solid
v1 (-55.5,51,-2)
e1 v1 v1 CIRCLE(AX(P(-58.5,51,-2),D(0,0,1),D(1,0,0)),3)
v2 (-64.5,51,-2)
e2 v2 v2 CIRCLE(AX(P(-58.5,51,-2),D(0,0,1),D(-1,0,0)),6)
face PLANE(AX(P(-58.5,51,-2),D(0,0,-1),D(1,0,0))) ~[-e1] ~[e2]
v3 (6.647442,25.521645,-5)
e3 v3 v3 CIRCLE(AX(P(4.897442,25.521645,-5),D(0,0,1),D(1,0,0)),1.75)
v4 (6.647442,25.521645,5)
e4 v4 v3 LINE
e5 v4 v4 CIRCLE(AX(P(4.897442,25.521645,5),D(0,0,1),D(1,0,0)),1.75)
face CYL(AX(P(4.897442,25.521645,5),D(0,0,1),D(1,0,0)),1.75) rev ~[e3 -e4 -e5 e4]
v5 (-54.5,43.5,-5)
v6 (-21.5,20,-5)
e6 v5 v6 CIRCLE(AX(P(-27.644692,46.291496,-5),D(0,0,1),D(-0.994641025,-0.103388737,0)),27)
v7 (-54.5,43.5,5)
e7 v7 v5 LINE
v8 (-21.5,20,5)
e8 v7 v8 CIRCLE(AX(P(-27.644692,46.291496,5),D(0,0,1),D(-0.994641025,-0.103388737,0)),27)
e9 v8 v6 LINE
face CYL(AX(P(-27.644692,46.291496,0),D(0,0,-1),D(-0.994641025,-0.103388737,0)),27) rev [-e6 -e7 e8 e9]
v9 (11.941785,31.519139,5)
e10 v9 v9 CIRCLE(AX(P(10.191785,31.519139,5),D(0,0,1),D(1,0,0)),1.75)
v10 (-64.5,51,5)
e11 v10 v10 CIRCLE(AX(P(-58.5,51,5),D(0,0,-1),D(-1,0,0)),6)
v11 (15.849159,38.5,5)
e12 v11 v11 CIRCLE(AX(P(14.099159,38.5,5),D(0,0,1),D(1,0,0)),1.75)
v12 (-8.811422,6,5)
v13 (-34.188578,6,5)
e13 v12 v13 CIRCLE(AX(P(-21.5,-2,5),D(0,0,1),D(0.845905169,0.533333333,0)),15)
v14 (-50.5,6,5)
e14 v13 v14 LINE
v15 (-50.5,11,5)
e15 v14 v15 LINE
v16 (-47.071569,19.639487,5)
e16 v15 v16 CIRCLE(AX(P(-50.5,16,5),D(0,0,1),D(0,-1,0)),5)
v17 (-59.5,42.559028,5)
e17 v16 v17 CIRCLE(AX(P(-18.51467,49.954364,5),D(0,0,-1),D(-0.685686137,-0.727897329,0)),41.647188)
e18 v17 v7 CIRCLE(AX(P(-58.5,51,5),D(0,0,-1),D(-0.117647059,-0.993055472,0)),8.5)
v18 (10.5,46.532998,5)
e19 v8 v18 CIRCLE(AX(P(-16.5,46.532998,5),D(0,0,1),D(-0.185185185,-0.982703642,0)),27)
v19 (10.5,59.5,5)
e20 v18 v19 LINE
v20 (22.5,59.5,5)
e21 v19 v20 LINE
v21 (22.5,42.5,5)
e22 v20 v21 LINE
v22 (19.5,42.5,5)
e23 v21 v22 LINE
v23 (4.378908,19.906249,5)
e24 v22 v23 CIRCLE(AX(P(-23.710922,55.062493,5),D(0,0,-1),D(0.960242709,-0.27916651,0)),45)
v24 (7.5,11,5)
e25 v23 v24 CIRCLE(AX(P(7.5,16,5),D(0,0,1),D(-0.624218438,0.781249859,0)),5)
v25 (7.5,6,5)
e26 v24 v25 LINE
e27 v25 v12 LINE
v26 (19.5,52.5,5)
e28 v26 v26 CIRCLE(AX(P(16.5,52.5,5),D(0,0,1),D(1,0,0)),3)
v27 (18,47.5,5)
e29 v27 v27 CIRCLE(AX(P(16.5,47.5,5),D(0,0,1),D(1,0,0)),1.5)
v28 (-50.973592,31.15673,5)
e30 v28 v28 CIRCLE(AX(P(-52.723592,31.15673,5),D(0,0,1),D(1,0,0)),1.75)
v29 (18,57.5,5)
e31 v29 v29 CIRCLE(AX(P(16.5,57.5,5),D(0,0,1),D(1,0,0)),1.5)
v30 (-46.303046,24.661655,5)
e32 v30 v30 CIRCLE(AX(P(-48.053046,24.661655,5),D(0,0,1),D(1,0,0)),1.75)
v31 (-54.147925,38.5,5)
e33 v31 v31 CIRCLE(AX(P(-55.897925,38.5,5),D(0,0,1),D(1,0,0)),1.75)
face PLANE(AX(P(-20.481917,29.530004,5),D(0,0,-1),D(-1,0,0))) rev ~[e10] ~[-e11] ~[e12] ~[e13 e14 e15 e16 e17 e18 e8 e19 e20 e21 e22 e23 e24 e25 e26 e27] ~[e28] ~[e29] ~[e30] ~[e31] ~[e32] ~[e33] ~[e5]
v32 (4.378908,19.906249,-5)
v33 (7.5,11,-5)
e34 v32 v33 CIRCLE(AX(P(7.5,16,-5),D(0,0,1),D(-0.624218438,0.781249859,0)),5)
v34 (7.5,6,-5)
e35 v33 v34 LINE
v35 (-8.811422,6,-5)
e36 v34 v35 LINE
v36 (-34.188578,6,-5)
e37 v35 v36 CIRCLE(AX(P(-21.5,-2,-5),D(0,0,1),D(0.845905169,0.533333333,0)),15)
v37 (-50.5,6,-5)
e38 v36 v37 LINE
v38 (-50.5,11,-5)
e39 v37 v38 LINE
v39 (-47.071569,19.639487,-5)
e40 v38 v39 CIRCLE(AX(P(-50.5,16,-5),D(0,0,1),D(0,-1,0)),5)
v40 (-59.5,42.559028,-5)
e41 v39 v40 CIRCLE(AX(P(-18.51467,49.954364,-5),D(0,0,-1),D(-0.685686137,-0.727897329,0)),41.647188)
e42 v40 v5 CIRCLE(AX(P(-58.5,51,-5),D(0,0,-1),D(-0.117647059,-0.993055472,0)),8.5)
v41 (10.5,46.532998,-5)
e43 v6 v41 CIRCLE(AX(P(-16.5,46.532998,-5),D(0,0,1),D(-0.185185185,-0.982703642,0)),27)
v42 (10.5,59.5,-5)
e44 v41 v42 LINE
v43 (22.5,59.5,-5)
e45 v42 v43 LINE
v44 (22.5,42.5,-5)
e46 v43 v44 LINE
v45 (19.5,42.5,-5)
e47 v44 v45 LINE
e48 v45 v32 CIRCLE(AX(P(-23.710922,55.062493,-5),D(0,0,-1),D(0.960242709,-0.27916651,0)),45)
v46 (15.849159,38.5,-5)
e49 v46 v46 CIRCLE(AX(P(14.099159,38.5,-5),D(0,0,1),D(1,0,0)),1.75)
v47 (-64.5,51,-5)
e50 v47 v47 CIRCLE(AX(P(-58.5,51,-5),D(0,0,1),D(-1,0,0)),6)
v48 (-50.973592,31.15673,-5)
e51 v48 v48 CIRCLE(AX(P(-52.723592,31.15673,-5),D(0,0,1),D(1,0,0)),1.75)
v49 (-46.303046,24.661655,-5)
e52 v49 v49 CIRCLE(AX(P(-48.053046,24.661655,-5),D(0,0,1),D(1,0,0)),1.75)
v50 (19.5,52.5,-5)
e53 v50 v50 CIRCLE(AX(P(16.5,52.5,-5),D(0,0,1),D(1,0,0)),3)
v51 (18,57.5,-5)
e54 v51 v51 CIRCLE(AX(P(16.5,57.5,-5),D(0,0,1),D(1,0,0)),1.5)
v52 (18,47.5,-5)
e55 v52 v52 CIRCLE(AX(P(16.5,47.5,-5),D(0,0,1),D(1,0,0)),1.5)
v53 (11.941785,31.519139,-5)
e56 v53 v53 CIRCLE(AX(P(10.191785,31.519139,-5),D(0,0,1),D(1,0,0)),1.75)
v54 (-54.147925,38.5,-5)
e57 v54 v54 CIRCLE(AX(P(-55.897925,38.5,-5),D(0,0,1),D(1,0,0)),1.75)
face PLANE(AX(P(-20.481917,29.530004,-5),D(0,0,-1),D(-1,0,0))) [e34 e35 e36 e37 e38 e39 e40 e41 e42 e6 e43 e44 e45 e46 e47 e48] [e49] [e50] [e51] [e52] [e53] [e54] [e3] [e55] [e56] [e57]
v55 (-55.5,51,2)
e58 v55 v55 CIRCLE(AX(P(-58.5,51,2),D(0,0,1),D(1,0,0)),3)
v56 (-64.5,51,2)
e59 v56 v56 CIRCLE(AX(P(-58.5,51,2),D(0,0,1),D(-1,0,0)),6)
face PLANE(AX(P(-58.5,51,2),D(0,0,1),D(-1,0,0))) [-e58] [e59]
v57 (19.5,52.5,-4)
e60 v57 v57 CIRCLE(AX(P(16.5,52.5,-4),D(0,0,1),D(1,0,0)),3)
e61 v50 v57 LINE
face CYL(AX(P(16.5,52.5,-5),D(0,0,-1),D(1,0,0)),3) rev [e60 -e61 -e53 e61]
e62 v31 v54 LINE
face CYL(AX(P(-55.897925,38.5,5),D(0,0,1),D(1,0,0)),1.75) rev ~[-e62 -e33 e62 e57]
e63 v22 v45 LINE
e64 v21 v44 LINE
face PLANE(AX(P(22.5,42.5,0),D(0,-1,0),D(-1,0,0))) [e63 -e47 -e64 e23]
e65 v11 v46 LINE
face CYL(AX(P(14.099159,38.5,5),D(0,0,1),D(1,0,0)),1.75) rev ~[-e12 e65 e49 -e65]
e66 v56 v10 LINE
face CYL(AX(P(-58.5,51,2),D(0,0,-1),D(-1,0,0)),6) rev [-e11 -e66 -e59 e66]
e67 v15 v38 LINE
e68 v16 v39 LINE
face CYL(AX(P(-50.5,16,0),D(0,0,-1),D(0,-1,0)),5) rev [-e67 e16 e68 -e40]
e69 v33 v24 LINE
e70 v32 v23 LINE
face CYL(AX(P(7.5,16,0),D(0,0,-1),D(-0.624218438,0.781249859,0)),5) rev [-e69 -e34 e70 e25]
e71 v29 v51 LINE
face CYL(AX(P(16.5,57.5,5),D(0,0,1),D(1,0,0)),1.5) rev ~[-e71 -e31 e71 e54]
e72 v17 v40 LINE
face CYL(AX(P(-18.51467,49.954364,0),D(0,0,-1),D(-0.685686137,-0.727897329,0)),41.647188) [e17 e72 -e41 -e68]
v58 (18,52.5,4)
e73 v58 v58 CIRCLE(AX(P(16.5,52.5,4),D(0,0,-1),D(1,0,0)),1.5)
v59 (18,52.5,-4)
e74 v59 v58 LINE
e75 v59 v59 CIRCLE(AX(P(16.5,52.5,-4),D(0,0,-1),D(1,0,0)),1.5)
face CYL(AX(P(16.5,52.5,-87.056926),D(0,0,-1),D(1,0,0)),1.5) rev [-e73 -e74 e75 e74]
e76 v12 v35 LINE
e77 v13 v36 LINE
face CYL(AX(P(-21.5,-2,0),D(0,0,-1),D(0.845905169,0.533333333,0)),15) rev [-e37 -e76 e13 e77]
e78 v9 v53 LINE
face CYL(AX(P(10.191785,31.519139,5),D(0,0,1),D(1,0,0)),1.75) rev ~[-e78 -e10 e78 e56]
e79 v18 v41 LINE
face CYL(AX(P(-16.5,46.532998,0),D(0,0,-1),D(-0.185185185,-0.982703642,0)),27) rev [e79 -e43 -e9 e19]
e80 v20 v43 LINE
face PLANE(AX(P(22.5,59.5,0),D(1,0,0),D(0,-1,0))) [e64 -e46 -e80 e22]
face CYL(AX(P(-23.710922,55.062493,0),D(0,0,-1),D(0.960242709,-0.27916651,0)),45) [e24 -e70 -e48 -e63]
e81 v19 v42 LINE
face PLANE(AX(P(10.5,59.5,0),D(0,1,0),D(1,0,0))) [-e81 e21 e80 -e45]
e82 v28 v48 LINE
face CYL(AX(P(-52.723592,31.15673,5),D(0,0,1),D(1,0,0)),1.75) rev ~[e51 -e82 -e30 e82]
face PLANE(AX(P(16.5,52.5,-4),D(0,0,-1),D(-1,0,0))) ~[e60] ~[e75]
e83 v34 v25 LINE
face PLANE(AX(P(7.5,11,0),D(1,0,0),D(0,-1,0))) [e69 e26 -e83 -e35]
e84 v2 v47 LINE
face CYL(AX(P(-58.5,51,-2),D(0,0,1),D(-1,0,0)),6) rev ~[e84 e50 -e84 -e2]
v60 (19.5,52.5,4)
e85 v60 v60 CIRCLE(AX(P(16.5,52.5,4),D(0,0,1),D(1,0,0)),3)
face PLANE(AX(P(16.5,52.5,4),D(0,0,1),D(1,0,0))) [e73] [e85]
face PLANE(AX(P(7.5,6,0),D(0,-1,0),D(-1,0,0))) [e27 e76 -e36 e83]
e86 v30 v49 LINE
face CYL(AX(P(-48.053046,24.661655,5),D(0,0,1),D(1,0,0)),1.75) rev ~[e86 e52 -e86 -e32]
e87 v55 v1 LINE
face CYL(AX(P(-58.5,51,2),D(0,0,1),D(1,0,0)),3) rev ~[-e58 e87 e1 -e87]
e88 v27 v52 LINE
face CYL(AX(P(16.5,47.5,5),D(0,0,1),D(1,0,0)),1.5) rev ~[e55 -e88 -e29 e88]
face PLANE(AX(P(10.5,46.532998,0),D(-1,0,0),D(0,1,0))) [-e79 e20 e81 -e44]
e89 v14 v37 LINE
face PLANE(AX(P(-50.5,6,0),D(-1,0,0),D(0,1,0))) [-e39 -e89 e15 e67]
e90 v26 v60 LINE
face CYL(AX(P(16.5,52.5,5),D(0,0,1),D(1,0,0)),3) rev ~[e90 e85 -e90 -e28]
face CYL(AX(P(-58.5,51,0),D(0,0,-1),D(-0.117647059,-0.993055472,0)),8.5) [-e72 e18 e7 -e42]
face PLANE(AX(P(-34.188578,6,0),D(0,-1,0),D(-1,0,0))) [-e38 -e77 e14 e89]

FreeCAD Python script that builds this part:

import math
import FreeCAD as App
import Part
import Sketcher
from FreeCAD import Vector

doc = App.newDocument("Part")
body = doc.addObject("PartDesign::Body", "Body")

sketch1 = body.newObject("Sketcher::SketchObject", "Sketch")
sketch1.AttachmentSupport = (doc.getObject("XY_Plane"), [""])
sketch1.MapMode = "FlatFace"
sketch1.addGeometry(Part.LineSegment(Vector(7.5, 6, 0), Vector(-8.8, 6, 0)), False)
sketch1.addGeometry(Part.ArcOfCircle(Part.Circle(Vector(-21.5, -2, 0), Vector(0, 0, 1), 15), math.radians(32), math.radians(148)), False)
sketch1.addGeometry(Part.LineSegment(Vector(-34.2, 6, 0), Vector(-50.5, 6, 0)), False)
sketch1.addGeometry(Part.LineSegment(Vector(-50.5, 6, 0), Vector(-50.5, 11, 0)), False)
sketch1.addGeometry(Part.ArcOfCircle(Part.Circle(Vector(-50.5, 16, 0), Vector(0, 0, 1), 5), math.radians(-90), math.radians(47)), False)
sketch1.addGeometry(Part.ArcOfCircle(Part.Circle(Vector(-18.5, 50, 0), Vector(0, 0, 1), 41.6), math.radians(-170), math.radians(-133)), False)
sketch1.addGeometry(Part.ArcOfCircle(Part.Circle(Vector(-58.5, 51, 0), Vector(0, 0, 1), 8.5), math.radians(-62), math.radians(263)), False)
sketch1.addGeometry(Part.ArcOfCircle(Part.Circle(Vector(-27.6, 46.3, 0), Vector(0, 0, 1), 27), math.radians(-174), math.radians(-77)), False)
sketch1.addGeometry(Part.ArcOfCircle(Part.Circle(Vector(-16.5, 46.5, 0), Vector(0, 0, 1), 27), math.radians(-101), math.radians(0)), False)
sketch1.addGeometry(Part.LineSegment(Vector(10.5, 46.5, 0), Vector(10.5, 59.5, 0)), False)
sketch1.addGeometry(Part.LineSegment(Vector(10.5, 59.5, 0), Vector(22.5, 59.5, 0)), False)
sketch1.addGeometry(Part.LineSegment(Vector(22.5, 59.5, 0), Vector(22.5, 42.5, 0)), False)
sketch1.addGeometry(Part.LineSegment(Vector(22.5, 42.5, 0), Vector(19.5, 42.5, 0)), False)
sketch1.addGeometry(Part.ArcOfCircle(Part.Circle(Vector(-23.7, 55.1, 0), Vector(0, 0, 1), 45), math.radians(-51), math.radians(-16)), False)
sketch1.addGeometry(Part.ArcOfCircle(Part.Circle(Vector(7.5, 16, 0), Vector(0, 0, 1), 5), math.radians(129), math.radians(270)), False)
sketch1.addGeometry(Part.LineSegment(Vector(7.5, 11, 0), Vector(7.5, 6, 0)), False)
sketch1.addConstraint(Sketcher.Constraint("Coincident", 0, 2, 1, 1))
sketch1.addConstraint(Sketcher.Constraint("Coincident", 1, 2, 2, 1))
sketch1.addConstraint(Sketcher.Constraint("Coincident", 2, 2, 3, 1))
sketch1.addConstraint(Sketcher.Constraint("Coincident", 3, 2, 4, 1))
sketch1.addConstraint(Sketcher.Constraint("Tangent", 4, 2, 5, 2))
sketch1.addConstraint(Sketcher.Constraint("Coincident", 5, 1, 6, 2))
sketch1.addConstraint(Sketcher.Constraint("Coincident", 6, 1, 7, 1))
sketch1.addConstraint(Sketcher.Constraint("Coincident", 7, 2, 8, 1))
sketch1.addConstraint(Sketcher.Constraint("Tangent", 8, 2, 9, 1))
sketch1.addConstraint(Sketcher.Constraint("Coincident", 9, 2, 10, 1))
sketch1.addConstraint(Sketcher.Constraint("Coincident", 10, 2, 11, 1))
sketch1.addConstraint(Sketcher.Constraint("Coincident", 11, 2, 12, 1))
sketch1.addConstraint(Sketcher.Constraint("Coincident", 12, 2, 13, 2))
sketch1.addConstraint(Sketcher.Constraint("Tangent", 13, 1, 14, 1))
sketch1.addConstraint(Sketcher.Constraint("Coincident", 14, 2, 15, 1))
sketch1.addConstraint(Sketcher.Constraint("Coincident", 15, 2, 0, 1))
sketch1.addConstraint(Sketcher.Constraint("Horizontal", 0))
sketch1.addConstraint(Sketcher.Constraint("Horizontal", 2))
sketch1.addConstraint(Sketcher.Constraint("Vertical", 3))
sketch1.addConstraint(Sketcher.Constraint("Vertical", 9))
sketch1.addConstraint(Sketcher.Constraint("Horizontal", 10))
sketch1.addConstraint(Sketcher.Constraint("Vertical", 11))
sketch1.addConstraint(Sketcher.Constraint("Horizontal", 12))
sketch1.addConstraint(Sketcher.Constraint("Vertical", 15))
sketch1.addConstraint(Sketcher.Constraint("Equal", 7, 8))
sketch1.addConstraint(Sketcher.Constraint("Equal", 4, 14))
sketch1.addConstraint(Sketcher.Constraint("Horizontal", 4, 3, 14, 3))
sketch1.addConstraint(Sketcher.Constraint("Horizontal", 0, 2, 1, 2))
sketch1.addConstraint(Sketcher.Constraint("Vertical", 4, 3, 2, 2))
sketch1.addConstraint(Sketcher.Constraint("Vertical", 1, 3, 7, 2))
sketch1.addConstraint(Sketcher.Constraint("Equal", 0, 2))
sketch1.addConstraint(Sketcher.Constraint("Radius", 1, 15.0))
sketch1.addConstraint(Sketcher.Constraint("Radius", 4, 5.0))
sketch1.addConstraint(Sketcher.Constraint("Radius", 7, 27.0))
sketch1.addConstraint(Sketcher.Constraint("Radius", 13, 45.0))
sketch1.addConstraint(Sketcher.Constraint("Radius", 6, 8.5))
sketch1.addConstraint(Sketcher.Constraint("DistanceX", 10, 1, 10, 2, 12.0))
sketch1.addConstraint(Sketcher.Constraint("DistanceX", 12, 2, 12, 1, 3.0))
sketch1.addConstraint(Sketcher.Constraint("DistanceY", 3, 1, 3, 2, 5.0))
sketch1.addConstraint(Sketcher.Constraint("DistanceY", 11, 2, 11, 1, 17.0))
sketch1.addConstraint(Sketcher.Constraint("DistanceY", 1, 3, -1, 1, 2.0))
sketch1.addConstraint(Sketcher.Constraint("DistanceY", -1, 1, 4, 3, 16.0))
sketch1.addConstraint(Sketcher.Constraint("DistanceY", -1, 1, 6, 3, 51.0))
sketch1.addConstraint(Sketcher.Constraint("DistanceY", -1, 1, 7, 2, 20.0))
sketch1.addConstraint(Sketcher.Constraint("DistanceX", 4, 3, 1, 3, 29.0))
sketch1.addConstraint(Sketcher.Constraint("DistanceX", 6, 3, 4, 3, 8.0))
sketch1.addConstraint(Sketcher.Constraint("DistanceX", 6, 3, 8, 3, 42.0))
sketch1.addConstraint(Sketcher.Constraint("DistanceX", 1, 3, 14, 3, 29.0))
sketch1.addConstraint(Sketcher.Constraint("DistanceX", 5, 1, 6, 3, 1.0))
sketch1.addConstraint(Sketcher.Constraint("DistanceX", 5, 1, 6, 1, 5.0))
sketch1.addConstraint(Sketcher.Constraint("DistanceX", 1, 3, -1, 1, 21.5))
sketch1.addConstraint(Sketcher.Constraint("DistanceY", -1, 1, 9, 2, 59.5))
sketch1.addConstraint(Sketcher.Constraint("Radius", 5, 41.647188))
pad1 = body.newObject("PartDesign::Pad", "Pad")
pad1.Profile = sketch1
pad1.Length = 10
pad1.Midplane = True

sketch2 = body.newObject("Sketcher::SketchObject", "Sketch001")
sketch2.AttachmentSupport = (doc.getObject("XY_Plane"), [""])
sketch2.MapMode = "FlatFace"
sketch2.AttachmentOffset = App.Placement(Vector(0, 0, 5), App.Rotation())
sketch2.addGeometry(Part.Circle(Vector(16.5, 52.5, 0), Vector(0, 0, 1), 3), False)
sketch2.addConstraint(Sketcher.Constraint("Diameter", 0, 6.0))
sketch2.addConstraint(Sketcher.Constraint("DistanceX", -1, 1, 0, 3, 16.5))
sketch2.addConstraint(Sketcher.Constraint("DistanceY", -1, 1, 0, 3, 52.5))
pocket1 = body.newObject("PartDesign::Pocket", "Pocket")
pocket1.Profile = sketch2
pocket1.Length = 1

sketch3 = body.newObject("Sketcher::SketchObject", "Sketch002")
sketch3.AttachmentSupport = (doc.getObject("XY_Plane"), [""])
sketch3.MapMode = "FlatFace"
sketch3.AttachmentOffset = App.Placement(Vector(0, 0, 4), App.Rotation())
sketch3.addGeometry(Part.Circle(Vector(16.5, 52.5, 0), Vector(0, 0, 1), 1.5), False)
sketch3.addConstraint(Sketcher.Constraint("Diameter", 0, 3.0))
sketch3.addConstraint(Sketcher.Constraint("DistanceX", -1, 1, 0, 3, 16.5))
sketch3.addConstraint(Sketcher.Constraint("DistanceY", -1, 1, 0, 3, 52.5))
pocket2 = body.newObject("PartDesign::Pocket", "Pocket001")
pocket2.Profile = sketch3
pocket2.Type = "ThroughAll"
pocket2.Midplane = True

sketch4 = body.newObject("Sketcher::SketchObject", "Sketch003")
sketch4.AttachmentSupport = (doc.getObject("XY_Plane"), [""])
sketch4.MapMode = "FlatFace"
sketch4.AttachmentOffset = App.Placement(Vector(0, 0, 5), App.Rotation())
sketch4.addGeometry(Part.Circle(Vector(16.5, 57.5, 0), Vector(0, 0, 1), 1.5), False)
sketch4.addGeometry(Part.Circle(Vector(16.5, 47.5, 0), Vector(0, 0, 1), 1.5), False)
sketch4.addConstraint(Sketcher.Constraint("Equal", 0, 1))
sketch4.addConstraint(Sketcher.Constraint("Vertical", 0, 3, 1, 3))
sketch4.addConstraint(Sketcher.Constraint("Diameter", 0, 3.0))
sketch4.addConstraint(Sketcher.Constraint("DistanceY", 1, 3, 0, 3, 10.0))
sketch4.addConstraint(Sketcher.Constraint("DistanceX", -1, 1, 0, 3, 16.5))
sketch4.addConstraint(Sketcher.Constraint("DistanceY", -1, 1, 0, 3, 57.5))
pocket3 = body.newObject("PartDesign::Pocket", "Pocket002")
pocket3.Profile = sketch4
pocket3.Type = "ThroughAll"

sketch5 = body.newObject("Sketcher::SketchObject", "Sketch004")
sketch5.AttachmentSupport = (doc.getObject("XY_Plane"), [""])
sketch5.MapMode = "FlatFace"
sketch5.AttachmentOffset = App.Placement(Vector(0, 0, 5), App.Rotation())
sketch5.addGeometry(Part.Circle(Vector(14.1, 38.5, 0), Vector(0, 0, 1), 1.8), False)
sketch5.addGeometry(Part.Circle(Vector(10.2, 31.5, 0), Vector(0, 0, 1), 1.8), False)
sketch5.addGeometry(Part.Circle(Vector(4.9, 25.5, 0), Vector(0, 0, 1), 1.8), False)
sketch5.addGeometry(Part.Circle(Vector(-55.9, 38.5, 0), Vector(0, 0, 1), 1.8), False)
sketch5.addGeometry(Part.Circle(Vector(-52.7, 31.2, 0), Vector(0, 0, 1), 1.8), False)
sketch5.addGeometry(Part.Circle(Vector(-48.1, 24.7, 0), Vector(0, 0, 1), 1.8), False)
sketch5.addConstraint(Sketcher.Constraint("Equal", 0, 1))
sketch5.addConstraint(Sketcher.Constraint("Equal", 1, 2))
sketch5.addConstraint(Sketcher.Constraint("Equal", 2, 3))
sketch5.addConstraint(Sketcher.Constraint("Equal", 3, 4))
sketch5.addConstraint(Sketcher.Constraint("Equal", 4, 5))
sketch5.addConstraint(Sketcher.Constraint("Horizontal", 0, 3, 3, 3))
sketch5.addConstraint(Sketcher.Constraint("Diameter", 0, 3.5))
sketch5.addConstraint(Sketcher.Constraint("DistanceY", -1, 1, 0, 3, 38.5))
sketch5.addConstraint(Sketcher.Constraint("DistanceX", -1, 1, 0, 3, 14.099159))
sketch5.addConstraint(Sketcher.Constraint("DistanceY", -1, 1, 1, 3, 31.519139))
sketch5.addConstraint(Sketcher.Constraint("DistanceX", -1, 1, 2, 3, 4.897442))
sketch5.addConstraint(Sketcher.Constraint("DistanceY", -1, 1, 4, 3, 31.15673))
sketch5.addConstraint(Sketcher.Constraint("DistanceX", 3, 3, 1, 3, 66.08971))
sketch5.addConstraint(Sketcher.Constraint("DistanceX", 4, 3, 0, 3, 66.822752))
sketch5.addConstraint(Sketcher.Constraint("DistanceX", 3, 3, 5, 3, 7.844879))
sketch5.addConstraint(Sketcher.Constraint("DistanceX", 5, 3, 2, 3, 52.950488))
sketch5.addConstraint(Sketcher.Constraint("DistanceY", 5, 3, 2, 3, 0.85999))
sketch5.addConstraint(Sketcher.Constraint("DistanceY", -1, 1, 2, 3, 25.521645))
pocket4 = body.newObject("PartDesign::Pocket", "Pocket003")
pocket4.Profile = sketch5
pocket4.Type = "ThroughAll"
doc.recompute()

mirrored = body.newObject("PartDesign::Mirrored", "Mirrored")
mirrored.Originals = [pocket1]
mirrored.MirrorPlane = (doc.getObject("XY_Plane"), [""])
body.Tip = mirrored

sketch6 = body.newObject("Sketcher::SketchObject", "Sketch005")
sketch6.AttachmentSupport = (doc.getObject("XY_Plane"), [""])
sketch6.MapMode = "FlatFace"
sketch6.AttachmentOffset = App.Placement(Vector(0, 0, 2), App.Rotation())
sketch6.addGeometry(Part.Circle(Vector(-58, 51, 0), Vector(0, 0, 1), 6), False)
sketch6.addConstraint(Sketcher.Constraint("Diameter", 0, 12.0))
sketch6.addConstraint(Sketcher.Constraint("DistanceY", -1, 1, 0, 3, 51.0))
sketch6.addConstraint(Sketcher.Constraint("DistanceX", 0, 3, -1, 1, 58.5))
pocket5 = body.newObject("PartDesign::Pocket", "Pocket004")
pocket5.Profile = sketch6
pocket5.Length = 94.162354
pocket5.Reversed = True
doc.recompute()

mirrored2 = body.newObject("PartDesign::Mirrored", "Mirrored001")
mirrored2.Originals = [pocket5]
mirrored2.MirrorPlane = (doc.getObject("XY_Plane"), [""])
body.Tip = mirrored2

sketch7 = body.newObject("Sketcher::SketchObject", "Sketch006")
sketch7.AttachmentSupport = (doc.getObject("XY_Plane"), [""])
sketch7.MapMode = "FlatFace"
sketch7.AttachmentOffset = App.Placement(Vector(0, 0, 2), App.Rotation())
sketch7.addGeometry(Part.Circle(Vector(-58.5, 51, 0), Vector(0, 0, 1), 3), False)
sketch7.addConstraint(Sketcher.Constraint("Diameter", 0, 6.0))
sketch7.addConstraint(Sketcher.Constraint("DistanceY", -1, 1, 0, 3, 51.0))
sketch7.addConstraint(Sketcher.Constraint("DistanceX", 0, 3, -1, 1, 58.5))
pocket6 = body.newObject("PartDesign::Pocket", "Pocket005")
pocket6.Profile = sketch7
pocket6.Type = "ThroughAll"

doc.recompute()
